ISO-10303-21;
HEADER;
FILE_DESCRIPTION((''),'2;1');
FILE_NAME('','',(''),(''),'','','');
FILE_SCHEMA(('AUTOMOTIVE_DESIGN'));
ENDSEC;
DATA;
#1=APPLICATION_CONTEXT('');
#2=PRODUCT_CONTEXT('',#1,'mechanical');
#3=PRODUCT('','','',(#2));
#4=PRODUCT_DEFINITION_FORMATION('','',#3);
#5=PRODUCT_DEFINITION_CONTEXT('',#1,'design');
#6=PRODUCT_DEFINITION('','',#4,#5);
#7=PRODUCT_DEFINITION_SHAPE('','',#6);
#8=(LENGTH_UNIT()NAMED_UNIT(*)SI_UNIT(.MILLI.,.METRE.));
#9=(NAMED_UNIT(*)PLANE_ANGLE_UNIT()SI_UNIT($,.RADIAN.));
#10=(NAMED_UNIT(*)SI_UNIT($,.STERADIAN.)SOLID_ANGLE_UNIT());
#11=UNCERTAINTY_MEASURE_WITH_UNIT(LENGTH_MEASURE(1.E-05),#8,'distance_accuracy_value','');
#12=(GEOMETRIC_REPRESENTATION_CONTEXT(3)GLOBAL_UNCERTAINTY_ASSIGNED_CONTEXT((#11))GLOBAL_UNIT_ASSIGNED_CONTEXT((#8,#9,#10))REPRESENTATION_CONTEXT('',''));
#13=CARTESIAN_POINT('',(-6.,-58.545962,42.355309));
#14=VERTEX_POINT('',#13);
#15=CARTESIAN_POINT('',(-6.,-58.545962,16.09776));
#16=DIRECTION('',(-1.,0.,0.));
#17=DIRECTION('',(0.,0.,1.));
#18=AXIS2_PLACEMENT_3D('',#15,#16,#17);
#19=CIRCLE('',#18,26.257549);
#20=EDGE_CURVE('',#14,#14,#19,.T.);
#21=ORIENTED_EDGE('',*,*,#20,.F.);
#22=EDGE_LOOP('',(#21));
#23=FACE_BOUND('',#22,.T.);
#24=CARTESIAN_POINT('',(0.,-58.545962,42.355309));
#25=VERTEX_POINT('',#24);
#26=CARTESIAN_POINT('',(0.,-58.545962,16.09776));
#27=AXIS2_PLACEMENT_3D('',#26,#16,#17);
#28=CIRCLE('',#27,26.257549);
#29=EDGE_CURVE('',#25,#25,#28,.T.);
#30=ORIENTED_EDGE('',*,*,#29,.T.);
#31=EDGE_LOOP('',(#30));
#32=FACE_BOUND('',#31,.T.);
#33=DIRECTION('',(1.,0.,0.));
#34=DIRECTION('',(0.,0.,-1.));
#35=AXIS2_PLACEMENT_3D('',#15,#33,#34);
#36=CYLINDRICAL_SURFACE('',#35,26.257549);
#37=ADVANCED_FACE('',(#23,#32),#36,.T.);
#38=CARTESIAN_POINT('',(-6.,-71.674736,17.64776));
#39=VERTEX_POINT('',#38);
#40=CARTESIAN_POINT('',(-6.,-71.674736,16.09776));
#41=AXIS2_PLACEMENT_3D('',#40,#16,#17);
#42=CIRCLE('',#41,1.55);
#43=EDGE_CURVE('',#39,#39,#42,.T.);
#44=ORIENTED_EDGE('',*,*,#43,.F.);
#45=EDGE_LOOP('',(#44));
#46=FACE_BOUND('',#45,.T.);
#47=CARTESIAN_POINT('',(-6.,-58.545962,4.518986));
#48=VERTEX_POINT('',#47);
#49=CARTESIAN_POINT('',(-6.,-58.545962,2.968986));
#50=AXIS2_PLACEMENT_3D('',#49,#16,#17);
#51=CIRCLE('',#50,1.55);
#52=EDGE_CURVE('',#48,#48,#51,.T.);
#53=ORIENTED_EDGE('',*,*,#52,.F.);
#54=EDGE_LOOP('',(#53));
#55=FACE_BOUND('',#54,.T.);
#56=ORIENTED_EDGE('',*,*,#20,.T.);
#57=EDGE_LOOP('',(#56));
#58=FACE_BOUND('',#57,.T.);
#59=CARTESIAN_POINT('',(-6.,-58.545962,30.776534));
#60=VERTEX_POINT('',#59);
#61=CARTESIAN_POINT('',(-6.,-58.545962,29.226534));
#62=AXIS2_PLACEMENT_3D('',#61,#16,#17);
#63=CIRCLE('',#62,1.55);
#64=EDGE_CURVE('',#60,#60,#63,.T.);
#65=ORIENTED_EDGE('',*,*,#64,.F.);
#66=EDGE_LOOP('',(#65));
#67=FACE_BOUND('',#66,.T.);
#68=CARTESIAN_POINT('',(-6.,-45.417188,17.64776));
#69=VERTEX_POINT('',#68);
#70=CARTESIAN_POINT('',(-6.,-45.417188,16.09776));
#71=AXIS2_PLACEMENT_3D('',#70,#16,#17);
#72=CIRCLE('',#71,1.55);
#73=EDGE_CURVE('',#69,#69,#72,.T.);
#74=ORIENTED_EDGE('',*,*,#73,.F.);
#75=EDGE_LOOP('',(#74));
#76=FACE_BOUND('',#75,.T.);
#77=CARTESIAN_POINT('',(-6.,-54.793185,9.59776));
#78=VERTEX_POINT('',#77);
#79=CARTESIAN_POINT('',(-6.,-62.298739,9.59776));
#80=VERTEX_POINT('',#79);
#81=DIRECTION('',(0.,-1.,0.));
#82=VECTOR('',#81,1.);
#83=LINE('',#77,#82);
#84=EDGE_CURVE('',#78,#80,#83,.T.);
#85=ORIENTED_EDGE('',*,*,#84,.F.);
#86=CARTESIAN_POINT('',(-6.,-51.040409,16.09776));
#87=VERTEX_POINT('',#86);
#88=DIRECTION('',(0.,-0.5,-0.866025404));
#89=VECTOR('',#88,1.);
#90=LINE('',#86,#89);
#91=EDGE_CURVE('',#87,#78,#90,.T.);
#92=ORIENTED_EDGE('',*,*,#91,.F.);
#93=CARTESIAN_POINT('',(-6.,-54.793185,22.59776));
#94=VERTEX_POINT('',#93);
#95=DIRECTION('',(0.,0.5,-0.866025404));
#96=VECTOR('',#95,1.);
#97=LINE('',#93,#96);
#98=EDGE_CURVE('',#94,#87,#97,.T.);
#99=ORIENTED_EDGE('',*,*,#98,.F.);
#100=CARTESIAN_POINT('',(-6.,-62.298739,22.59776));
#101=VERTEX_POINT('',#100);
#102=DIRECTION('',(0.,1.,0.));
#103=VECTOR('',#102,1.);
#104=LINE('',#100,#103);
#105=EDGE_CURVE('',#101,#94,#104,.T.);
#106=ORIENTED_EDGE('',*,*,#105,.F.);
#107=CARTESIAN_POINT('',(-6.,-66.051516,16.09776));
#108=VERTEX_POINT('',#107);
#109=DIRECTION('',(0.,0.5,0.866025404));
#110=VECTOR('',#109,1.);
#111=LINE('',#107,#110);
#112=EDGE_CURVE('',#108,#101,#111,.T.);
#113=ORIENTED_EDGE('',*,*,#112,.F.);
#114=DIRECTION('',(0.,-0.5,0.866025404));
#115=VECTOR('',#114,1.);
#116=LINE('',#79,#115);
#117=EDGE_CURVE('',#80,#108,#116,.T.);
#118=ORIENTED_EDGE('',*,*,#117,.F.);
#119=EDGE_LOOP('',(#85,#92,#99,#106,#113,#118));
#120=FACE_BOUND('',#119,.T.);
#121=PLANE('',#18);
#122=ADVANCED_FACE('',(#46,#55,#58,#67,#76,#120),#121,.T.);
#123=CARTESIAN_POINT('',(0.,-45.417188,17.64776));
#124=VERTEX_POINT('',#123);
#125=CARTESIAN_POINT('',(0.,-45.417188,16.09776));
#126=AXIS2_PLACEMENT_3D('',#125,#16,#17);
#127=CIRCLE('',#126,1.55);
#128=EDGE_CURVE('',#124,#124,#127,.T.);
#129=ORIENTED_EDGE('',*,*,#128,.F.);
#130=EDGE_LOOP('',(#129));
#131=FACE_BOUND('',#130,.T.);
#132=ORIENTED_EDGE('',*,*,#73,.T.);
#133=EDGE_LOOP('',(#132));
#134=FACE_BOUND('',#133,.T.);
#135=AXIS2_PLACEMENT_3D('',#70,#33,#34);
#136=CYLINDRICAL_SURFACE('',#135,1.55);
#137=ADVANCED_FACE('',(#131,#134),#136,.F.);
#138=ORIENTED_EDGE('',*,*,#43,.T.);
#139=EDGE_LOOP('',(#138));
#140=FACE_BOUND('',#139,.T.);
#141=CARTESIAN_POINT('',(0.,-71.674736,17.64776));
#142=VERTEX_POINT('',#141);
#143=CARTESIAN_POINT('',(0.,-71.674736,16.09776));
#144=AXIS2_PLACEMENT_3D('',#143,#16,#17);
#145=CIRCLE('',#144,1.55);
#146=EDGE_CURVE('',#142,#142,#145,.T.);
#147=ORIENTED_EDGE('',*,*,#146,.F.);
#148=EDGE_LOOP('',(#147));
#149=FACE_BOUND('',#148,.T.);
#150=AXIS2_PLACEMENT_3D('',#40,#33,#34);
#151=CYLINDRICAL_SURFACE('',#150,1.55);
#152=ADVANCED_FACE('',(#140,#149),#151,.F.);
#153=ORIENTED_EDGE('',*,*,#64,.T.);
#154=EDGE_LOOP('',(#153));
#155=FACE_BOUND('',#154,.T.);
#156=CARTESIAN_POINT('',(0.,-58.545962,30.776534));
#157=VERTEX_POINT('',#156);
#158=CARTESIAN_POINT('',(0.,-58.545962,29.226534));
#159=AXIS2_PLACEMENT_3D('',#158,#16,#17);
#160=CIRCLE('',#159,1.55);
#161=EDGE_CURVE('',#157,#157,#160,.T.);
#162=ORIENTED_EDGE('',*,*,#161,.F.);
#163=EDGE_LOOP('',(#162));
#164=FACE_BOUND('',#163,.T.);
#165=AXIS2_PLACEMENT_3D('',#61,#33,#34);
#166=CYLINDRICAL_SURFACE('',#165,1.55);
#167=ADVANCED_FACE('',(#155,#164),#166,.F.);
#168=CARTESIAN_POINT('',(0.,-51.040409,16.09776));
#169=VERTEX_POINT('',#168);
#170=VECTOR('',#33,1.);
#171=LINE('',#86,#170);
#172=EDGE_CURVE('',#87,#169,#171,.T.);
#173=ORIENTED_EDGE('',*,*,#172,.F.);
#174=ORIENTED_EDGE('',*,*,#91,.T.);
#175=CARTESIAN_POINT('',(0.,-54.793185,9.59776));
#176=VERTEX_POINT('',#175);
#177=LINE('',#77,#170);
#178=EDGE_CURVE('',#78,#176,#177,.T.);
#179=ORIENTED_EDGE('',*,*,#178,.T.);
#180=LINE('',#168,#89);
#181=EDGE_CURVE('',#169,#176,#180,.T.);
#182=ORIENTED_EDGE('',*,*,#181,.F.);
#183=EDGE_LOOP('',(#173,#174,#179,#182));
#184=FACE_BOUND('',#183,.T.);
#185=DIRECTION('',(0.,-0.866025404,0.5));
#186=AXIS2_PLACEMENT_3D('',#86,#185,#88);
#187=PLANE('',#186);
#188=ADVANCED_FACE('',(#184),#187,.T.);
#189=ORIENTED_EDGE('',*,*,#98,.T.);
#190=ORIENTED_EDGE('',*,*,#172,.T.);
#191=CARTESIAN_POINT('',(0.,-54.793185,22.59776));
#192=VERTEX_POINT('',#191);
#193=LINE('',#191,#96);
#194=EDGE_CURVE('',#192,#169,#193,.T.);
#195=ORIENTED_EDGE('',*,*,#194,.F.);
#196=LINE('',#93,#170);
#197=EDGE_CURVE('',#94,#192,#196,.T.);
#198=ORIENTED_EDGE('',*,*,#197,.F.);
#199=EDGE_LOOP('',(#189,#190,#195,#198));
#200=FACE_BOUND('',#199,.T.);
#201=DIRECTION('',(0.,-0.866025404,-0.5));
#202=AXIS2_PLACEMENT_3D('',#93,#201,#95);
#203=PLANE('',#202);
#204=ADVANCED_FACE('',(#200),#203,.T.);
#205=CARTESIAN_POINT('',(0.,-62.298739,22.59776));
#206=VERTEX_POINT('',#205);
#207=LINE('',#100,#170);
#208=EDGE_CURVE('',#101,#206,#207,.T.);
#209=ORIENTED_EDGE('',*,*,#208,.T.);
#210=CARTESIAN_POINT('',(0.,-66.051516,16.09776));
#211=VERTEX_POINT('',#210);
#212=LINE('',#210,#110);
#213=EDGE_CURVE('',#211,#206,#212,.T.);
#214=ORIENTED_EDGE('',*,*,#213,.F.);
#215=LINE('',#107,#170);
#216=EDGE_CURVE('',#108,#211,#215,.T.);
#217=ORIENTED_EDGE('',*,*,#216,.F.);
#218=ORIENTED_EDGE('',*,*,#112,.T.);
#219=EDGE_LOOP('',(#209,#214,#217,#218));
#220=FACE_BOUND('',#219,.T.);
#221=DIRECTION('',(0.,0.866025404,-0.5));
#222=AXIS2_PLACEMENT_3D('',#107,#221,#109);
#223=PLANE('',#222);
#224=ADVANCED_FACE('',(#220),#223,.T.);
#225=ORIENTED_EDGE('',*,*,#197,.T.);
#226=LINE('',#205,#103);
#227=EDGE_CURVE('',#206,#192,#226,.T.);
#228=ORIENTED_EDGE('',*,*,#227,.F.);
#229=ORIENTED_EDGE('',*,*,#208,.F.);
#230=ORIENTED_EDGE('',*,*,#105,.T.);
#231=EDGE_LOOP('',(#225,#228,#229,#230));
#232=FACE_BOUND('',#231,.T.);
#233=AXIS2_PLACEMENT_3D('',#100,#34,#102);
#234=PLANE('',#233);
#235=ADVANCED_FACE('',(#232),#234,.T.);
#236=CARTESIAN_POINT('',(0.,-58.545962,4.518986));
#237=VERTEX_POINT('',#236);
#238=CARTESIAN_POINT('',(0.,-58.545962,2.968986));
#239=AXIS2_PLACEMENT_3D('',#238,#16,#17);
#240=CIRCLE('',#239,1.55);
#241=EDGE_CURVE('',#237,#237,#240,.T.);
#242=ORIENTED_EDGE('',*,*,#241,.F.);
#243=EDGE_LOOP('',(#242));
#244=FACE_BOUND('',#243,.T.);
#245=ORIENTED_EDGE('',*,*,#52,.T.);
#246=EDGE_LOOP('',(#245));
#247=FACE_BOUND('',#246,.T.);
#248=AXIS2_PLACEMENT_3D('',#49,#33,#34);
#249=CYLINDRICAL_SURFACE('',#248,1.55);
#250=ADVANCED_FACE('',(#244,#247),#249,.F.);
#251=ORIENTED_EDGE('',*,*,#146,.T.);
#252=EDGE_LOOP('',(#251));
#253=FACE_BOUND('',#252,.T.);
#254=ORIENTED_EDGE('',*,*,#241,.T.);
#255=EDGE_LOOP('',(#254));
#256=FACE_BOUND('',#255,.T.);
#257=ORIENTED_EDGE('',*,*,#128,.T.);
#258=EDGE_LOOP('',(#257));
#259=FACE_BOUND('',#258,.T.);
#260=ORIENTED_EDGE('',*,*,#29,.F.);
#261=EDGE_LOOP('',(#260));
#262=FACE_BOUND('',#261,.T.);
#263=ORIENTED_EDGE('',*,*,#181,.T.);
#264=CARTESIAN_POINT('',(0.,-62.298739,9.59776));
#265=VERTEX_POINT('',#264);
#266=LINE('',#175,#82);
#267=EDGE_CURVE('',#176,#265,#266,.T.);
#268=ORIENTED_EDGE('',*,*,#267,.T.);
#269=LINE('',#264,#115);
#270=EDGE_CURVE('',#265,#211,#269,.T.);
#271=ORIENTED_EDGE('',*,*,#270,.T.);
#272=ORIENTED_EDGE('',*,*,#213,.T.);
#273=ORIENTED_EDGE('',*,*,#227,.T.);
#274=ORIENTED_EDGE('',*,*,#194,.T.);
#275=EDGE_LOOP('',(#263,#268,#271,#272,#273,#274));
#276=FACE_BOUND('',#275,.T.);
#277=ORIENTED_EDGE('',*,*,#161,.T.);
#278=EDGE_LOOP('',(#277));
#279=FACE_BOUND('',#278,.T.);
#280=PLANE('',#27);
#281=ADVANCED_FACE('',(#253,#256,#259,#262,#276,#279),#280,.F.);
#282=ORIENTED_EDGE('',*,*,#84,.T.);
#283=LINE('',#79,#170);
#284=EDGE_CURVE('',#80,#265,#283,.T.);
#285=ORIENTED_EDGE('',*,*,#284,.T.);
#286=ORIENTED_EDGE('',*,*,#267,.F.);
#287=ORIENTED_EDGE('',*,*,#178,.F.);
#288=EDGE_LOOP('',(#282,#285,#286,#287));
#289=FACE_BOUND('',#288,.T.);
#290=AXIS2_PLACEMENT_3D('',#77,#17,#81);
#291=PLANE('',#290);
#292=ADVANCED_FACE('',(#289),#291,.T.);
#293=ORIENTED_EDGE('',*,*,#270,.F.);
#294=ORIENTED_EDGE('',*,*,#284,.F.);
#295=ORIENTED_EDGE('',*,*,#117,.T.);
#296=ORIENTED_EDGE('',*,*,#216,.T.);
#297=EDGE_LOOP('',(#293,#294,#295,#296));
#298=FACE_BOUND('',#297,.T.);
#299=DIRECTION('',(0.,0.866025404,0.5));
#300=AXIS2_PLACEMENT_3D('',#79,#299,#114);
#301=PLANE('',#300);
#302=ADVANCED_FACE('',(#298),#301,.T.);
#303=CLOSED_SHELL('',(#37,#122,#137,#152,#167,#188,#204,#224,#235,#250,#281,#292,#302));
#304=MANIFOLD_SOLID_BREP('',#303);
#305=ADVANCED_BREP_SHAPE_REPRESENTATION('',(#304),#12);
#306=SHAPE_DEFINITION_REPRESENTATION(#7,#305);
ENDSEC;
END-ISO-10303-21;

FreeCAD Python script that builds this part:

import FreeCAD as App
import Part
import Sketcher
from FreeCAD import Vector
Q = App.Units.Quantity

doc = App.newDocument("Part")
body = doc.addObject("PartDesign::Body", "Body")

sketch1 = doc.addObject("Sketcher::SketchObject", "Sketch")
body.addObject(sketch1)
sketch1.AttachmentSupport = (doc.YZ_Plane, [""])
sketch1.MapMode = "FlatFace"
sketch1.addGeometry([
    Part.Circle(Vector(-58.5, 16.1, 0), Vector(0, 0, 1), 26.3),
    Part.Circle(Vector(-58.5, 3, 0), Vector(0, 0, 1), 1.6),
    Part.Circle(Vector(-71.7, 16.1, 0), Vector(0, 0, 1), 1.6),
    Part.Circle(Vector(-58.5, 29.2, 0), Vector(0, 0, 1), 1.6),
    Part.LineSegment(Vector(-54.8, 9.6, 0), Vector(-51, 16.1, 0)),
    Part.LineSegment(Vector(-51, 16.1, 0), Vector(-54.8, 22.6, 0)),
    Part.LineSegment(Vector(-54.8, 22.6, 0), Vector(-62.3, 22.6, 0)),
    Part.LineSegment(Vector(-62.3, 22.6, 0), Vector(-66.1, 16.1, 0)),
    Part.LineSegment(Vector(-66.1, 16.1, 0), Vector(-62.3, 9.6, 0)),
    Part.LineSegment(Vector(-62.3, 9.6, 0), Vector(-54.8, 9.6, 0)),
    Part.Circle(Vector(-45.4, 16.1, 0), Vector(0, 0, 1), 1.6),
], False)
sketch1.addConstraint([
    Sketcher.Constraint("Coincident", 4, 2, 5, 1),
    Sketcher.Constraint("Coincident", 5, 2, 6, 1),
    Sketcher.Constraint("Coincident", 6, 2, 7, 1),
    Sketcher.Constraint("Coincident", 7, 2, 8, 1),
    Sketcher.Constraint("Coincident", 8, 2, 9, 1),
    Sketcher.Constraint("Coincident", 9, 2, 4, 1),
    Sketcher.Constraint("Horizontal", 6),
    Sketcher.Constraint("Horizontal", 9),
    Sketcher.Constraint("Equal", 1, 2),
    Sketcher.Constraint("Equal", 2, 3),
    Sketcher.Constraint("Equal", 3, 10),
    Sketcher.Constraint("Parallel", 4, 7),
    Sketcher.Constraint("Parallel", 5, 8),
    Sketcher.Constraint("Horizontal", 0, 3, 2, 3),
    Sketcher.Constraint("Horizontal", 2, 3, 10, 3),
    Sketcher.Constraint("Horizontal", 10, 3, 4, 2),
    Sketcher.Constraint("Horizontal", 4, 2, 7, 2),
    Sketcher.Constraint("Vertical", 0, 3, 1, 3),
    Sketcher.Constraint("Vertical", 1, 3, 3, 3),
    Sketcher.Constraint("Vertical", 6, 2, 8, 2),
    Sketcher.Constraint("Vertical", 5, 2, 9, 2),
    Sketcher.Constraint("Diameter", 1, 3.1),
    Sketcher.Constraint("Angle", 4, Q("60 deg")),
    Sketcher.Constraint("Diameter", 0, 52.515098),
    Sketcher.Constraint("DistanceY", 4, 2, 5, 2, 6.5),
    Sketcher.Constraint("DistanceX", 6, 2, 6, 1, 7.505553),
    Sketcher.Constraint("DistanceY", -1, 1, 0, 3, 16.09776),
    Sketcher.Constraint("DistanceX", 4, 2, -1, 1, 51.040409),
    Sketcher.Constraint("DistanceY", 1, 3, 3, 3, 26.257549),
    Sketcher.Constraint("DistanceX", 2, 3, 10, 3, 26.257549),
    Sketcher.Constraint("DistanceX", 4, 2, 10, 3, 5.623221),
    Sketcher.Constraint("DistanceX", 0, 3, -1, 1, 58.545962),
    Sketcher.Constraint("DistanceY", -1, 1, 1, 3, 2.968986),
])
pad1 = doc.addObject("PartDesign::Pad", "Pad")
body.addObject(pad1)
pad1.Profile = sketch1
pad1.Length = 6
pad1.Reversed = True

doc.recompute()
